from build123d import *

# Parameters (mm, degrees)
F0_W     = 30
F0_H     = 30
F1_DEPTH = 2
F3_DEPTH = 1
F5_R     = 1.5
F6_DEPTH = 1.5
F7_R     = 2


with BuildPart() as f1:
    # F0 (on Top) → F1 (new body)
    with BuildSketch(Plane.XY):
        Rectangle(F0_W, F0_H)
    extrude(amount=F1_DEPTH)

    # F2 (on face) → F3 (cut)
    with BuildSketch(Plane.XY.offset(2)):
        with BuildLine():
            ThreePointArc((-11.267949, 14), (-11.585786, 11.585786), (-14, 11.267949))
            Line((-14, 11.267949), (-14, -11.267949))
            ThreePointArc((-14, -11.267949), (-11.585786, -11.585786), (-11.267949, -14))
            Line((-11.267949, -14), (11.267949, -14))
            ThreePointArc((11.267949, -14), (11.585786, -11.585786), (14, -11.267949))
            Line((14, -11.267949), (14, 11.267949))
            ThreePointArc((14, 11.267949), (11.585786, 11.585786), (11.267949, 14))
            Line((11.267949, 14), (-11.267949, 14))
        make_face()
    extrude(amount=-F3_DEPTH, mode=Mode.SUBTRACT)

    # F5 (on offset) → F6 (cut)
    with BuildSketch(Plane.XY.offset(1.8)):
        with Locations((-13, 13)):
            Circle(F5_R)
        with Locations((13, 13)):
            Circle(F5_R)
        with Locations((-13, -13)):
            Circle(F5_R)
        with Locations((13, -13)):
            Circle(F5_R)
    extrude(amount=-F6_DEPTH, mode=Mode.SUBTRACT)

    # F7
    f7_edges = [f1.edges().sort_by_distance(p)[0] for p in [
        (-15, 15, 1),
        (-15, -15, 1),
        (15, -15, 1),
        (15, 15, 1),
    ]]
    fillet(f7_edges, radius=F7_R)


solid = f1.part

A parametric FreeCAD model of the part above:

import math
import FreeCAD as App
import Part
import Sketcher


def edges_at(feature, points):
    """Names of the edges that pass closest to the given points."""
    edges = feature.Shape.Edges
    near = lambda p: min(range(len(edges)), key=lambda i: edges[i].distToShape(Part.Vertex(*p))[0])
    return sorted({f"Edge{near(p) + 1}" for p in points})

doc = App.newDocument("Part")
body = doc.addObject("PartDesign::Body", "Body")

# Sketch on XY plane
sketch1 = body.newObject("Sketcher::SketchObject", "Sketch")
sketch1.AttachmentSupport = (doc.getObject("XY_Plane"), [""])
sketch1.MapMode = "FlatFace"
sketch1.addGeometry([
    Part.LineSegment(App.Vector(-15, 15, 0), App.Vector(-15, -15, 0)),
    Part.LineSegment(App.Vector(-15, -15, 0), App.Vector(15, -15, 0)),
    Part.LineSegment(App.Vector(15, -15, 0), App.Vector(15, 15, 0)),
    Part.LineSegment(App.Vector(15, 15, 0), App.Vector(-15, 15, 0)),
], False)
sketch1.addConstraint([
    Sketcher.Constraint("Coincident", 0, 2, 1, 1),
    Sketcher.Constraint("Coincident", 1, 2, 2, 1),
    Sketcher.Constraint("Coincident", 2, 2, 3, 1),
    Sketcher.Constraint("Coincident", 3, 2, 0, 1),
    Sketcher.Constraint("Vertical", 0),
    Sketcher.Constraint("Horizontal", 1),
    Sketcher.Constraint("Vertical", 2),
    Sketcher.Constraint("Horizontal", 3),
    Sketcher.Constraint("Symmetric", 0, 2, 2, 2, -1, 1),
    Sketcher.Constraint("Equal", 3, 0),
    Sketcher.Constraint("DistanceX", 1, 1, 1, 2, 30.0),
])
pad1 = body.newObject("PartDesign::Pad", "Pad")
pad1.Profile = sketch1
pad1.Length = 2

# Sketch on XY plane
sketch2 = body.newObject("Sketcher::SketchObject", "Sketch001")
sketch2.AttachmentSupport = (doc.getObject("XY_Plane"), [""])
sketch2.MapMode = "FlatFace"
sketch2.AttachmentOffset = App.Placement(App.Vector(0, 0, 2), App.Rotation())
sketch2.addGeometry([
    Part.ArcOfCircle(Part.Circle(App.Vector(-13, 13, 0), App.Vector(0, 0, 1), 2), math.radians(-120), math.radians(30)),  # 0
    Part.LineSegment(App.Vector(-14, 11.3, 0), App.Vector(-14, -11.3, 0)),  # 1
    Part.ArcOfCircle(Part.Circle(App.Vector(-13, -13, 0), App.Vector(0, 0, 1), 2), math.radians(-30), math.radians(120)),  # 2
    Part.LineSegment(App.Vector(-11.3, -14, 0), App.Vector(11.3, -14, 0)),  # 3
    Part.ArcOfCircle(Part.Circle(App.Vector(13, -13, 0), App.Vector(0, 0, 1), 2), math.radians(60), math.radians(210)),  # 4
    Part.LineSegment(App.Vector(14, -11.3, 0), App.Vector(14, 11.3, 0)),  # 5
    Part.ArcOfCircle(Part.Circle(App.Vector(13, 13, 0), App.Vector(0, 0, 1), 2), math.radians(150), math.radians(300)),  # 6
    Part.LineSegment(App.Vector(11.3, 14, 0), App.Vector(-11.3, 14, 0)),  # 7
], False)
sketch2.addConstraint([
    Sketcher.Constraint("Coincident", 0, 1, 1, 1),
    Sketcher.Constraint("Coincident", 1, 2, 2, 2),
    Sketcher.Constraint("Coincident", 2, 1, 3, 1),
    Sketcher.Constraint("Coincident", 3, 2, 4, 2),
    Sketcher.Constraint("Coincident", 4, 1, 5, 1),
    Sketcher.Constraint("Coincident", 5, 2, 6, 2),
    Sketcher.Constraint("Coincident", 6, 1, 7, 1),
    Sketcher.Constraint("Coincident", 7, 2, 0, 2),
    Sketcher.Constraint("Vertical", 1),
    Sketcher.Constraint("Horizontal", 3),
    Sketcher.Constraint("Vertical", 5),
    Sketcher.Constraint("Horizontal", 7),
    Sketcher.Constraint("Equal", 0, 2),
    Sketcher.Constraint("Equal", 2, 4),
    Sketcher.Constraint("Equal", 4, 6),
    Sketcher.Constraint("Symmetric", 0, 3, 4, 3, -1, 1),
    Sketcher.Constraint("Symmetric", 2, 3, 6, 3, -1, 1),
    Sketcher.Constraint("Symmetric", 2, 3, 4, 3, -2),
    Sketcher.Constraint("Horizontal", 1, 2, 4, 1),
    Sketcher.Constraint("Vertical", 3, 2, 6, 1),
    Sketcher.Constraint("Equal", 7, 1),
    Sketcher.Constraint("Radius", 0, 2.0),
    Sketcher.Constraint("DistanceX", 0, 3, -1, 1, 13.0),
    Sketcher.Constraint("DistanceY", -1, 1, 0, 3, 13.0),
    Sketcher.Constraint("DistanceX", 0, 1, -1, 1, 14.0),
])
pocket1 = body.newObject("PartDesign::Pocket", "Pocket")
pocket1.Profile = sketch2
pocket1.Length = 1

# Sketch on XY plane
sketch3 = body.newObject("Sketcher::SketchObject", "Sketch002")
sketch3.AttachmentSupport = (doc.getObject("XY_Plane"), [""])
sketch3.MapMode = "FlatFace"
sketch3.AttachmentOffset = App.Placement(App.Vector(0, 0, 1.8), App.Rotation())
sketch3.addGeometry([
    Part.Circle(App.Vector(-13, 13, 0), App.Vector(0, 0, 1), 1.5),
    Part.Circle(App.Vector(13, 13, 0), App.Vector(0, 0, 1), 1.5),
    Part.Circle(App.Vector(-13, -13, 0), App.Vector(0, 0, 1), 1.5),
    Part.Circle(App.Vector(13, -13, 0), App.Vector(0, 0, 1), 1.5),
], False)
sketch3.addConstraint([
    Sketcher.Constraint("Equal", 0, 1),
    Sketcher.Constraint("Equal", 1, 2),
    Sketcher.Constraint("Equal", 2, 3),
    Sketcher.Constraint("Symmetric", 1, 3, 2, 3, -1, 1),
    Sketcher.Constraint("Symmetric", 0, 3, 3, 3, -1, 1),
    Sketcher.Constraint("Symmetric", 0, 3, 1, 3, -2),
    Sketcher.Constraint("Diameter", 0, 3.0),
    Sketcher.Constraint("DistanceX", 0, 3, -1, 1, 13.0),
    Sketcher.Constraint("DistanceY", -1, 1, 0, 3, 13.0),
])
pocket2 = body.newObject("PartDesign::Pocket", "Pocket001")
pocket2.Profile = sketch3
pocket2.Length = 1.5
doc.recompute()

fillet = body.newObject("PartDesign::Fillet", "Fillet")
fillet.Base = (pocket2, edges_at(pocket2, [
    (-15, 15, 1),
    (-15, -15, 1),
    (15, -15, 1),
    (15, 15, 1),
]))
fillet.Radius = 2

doc.recompute()
